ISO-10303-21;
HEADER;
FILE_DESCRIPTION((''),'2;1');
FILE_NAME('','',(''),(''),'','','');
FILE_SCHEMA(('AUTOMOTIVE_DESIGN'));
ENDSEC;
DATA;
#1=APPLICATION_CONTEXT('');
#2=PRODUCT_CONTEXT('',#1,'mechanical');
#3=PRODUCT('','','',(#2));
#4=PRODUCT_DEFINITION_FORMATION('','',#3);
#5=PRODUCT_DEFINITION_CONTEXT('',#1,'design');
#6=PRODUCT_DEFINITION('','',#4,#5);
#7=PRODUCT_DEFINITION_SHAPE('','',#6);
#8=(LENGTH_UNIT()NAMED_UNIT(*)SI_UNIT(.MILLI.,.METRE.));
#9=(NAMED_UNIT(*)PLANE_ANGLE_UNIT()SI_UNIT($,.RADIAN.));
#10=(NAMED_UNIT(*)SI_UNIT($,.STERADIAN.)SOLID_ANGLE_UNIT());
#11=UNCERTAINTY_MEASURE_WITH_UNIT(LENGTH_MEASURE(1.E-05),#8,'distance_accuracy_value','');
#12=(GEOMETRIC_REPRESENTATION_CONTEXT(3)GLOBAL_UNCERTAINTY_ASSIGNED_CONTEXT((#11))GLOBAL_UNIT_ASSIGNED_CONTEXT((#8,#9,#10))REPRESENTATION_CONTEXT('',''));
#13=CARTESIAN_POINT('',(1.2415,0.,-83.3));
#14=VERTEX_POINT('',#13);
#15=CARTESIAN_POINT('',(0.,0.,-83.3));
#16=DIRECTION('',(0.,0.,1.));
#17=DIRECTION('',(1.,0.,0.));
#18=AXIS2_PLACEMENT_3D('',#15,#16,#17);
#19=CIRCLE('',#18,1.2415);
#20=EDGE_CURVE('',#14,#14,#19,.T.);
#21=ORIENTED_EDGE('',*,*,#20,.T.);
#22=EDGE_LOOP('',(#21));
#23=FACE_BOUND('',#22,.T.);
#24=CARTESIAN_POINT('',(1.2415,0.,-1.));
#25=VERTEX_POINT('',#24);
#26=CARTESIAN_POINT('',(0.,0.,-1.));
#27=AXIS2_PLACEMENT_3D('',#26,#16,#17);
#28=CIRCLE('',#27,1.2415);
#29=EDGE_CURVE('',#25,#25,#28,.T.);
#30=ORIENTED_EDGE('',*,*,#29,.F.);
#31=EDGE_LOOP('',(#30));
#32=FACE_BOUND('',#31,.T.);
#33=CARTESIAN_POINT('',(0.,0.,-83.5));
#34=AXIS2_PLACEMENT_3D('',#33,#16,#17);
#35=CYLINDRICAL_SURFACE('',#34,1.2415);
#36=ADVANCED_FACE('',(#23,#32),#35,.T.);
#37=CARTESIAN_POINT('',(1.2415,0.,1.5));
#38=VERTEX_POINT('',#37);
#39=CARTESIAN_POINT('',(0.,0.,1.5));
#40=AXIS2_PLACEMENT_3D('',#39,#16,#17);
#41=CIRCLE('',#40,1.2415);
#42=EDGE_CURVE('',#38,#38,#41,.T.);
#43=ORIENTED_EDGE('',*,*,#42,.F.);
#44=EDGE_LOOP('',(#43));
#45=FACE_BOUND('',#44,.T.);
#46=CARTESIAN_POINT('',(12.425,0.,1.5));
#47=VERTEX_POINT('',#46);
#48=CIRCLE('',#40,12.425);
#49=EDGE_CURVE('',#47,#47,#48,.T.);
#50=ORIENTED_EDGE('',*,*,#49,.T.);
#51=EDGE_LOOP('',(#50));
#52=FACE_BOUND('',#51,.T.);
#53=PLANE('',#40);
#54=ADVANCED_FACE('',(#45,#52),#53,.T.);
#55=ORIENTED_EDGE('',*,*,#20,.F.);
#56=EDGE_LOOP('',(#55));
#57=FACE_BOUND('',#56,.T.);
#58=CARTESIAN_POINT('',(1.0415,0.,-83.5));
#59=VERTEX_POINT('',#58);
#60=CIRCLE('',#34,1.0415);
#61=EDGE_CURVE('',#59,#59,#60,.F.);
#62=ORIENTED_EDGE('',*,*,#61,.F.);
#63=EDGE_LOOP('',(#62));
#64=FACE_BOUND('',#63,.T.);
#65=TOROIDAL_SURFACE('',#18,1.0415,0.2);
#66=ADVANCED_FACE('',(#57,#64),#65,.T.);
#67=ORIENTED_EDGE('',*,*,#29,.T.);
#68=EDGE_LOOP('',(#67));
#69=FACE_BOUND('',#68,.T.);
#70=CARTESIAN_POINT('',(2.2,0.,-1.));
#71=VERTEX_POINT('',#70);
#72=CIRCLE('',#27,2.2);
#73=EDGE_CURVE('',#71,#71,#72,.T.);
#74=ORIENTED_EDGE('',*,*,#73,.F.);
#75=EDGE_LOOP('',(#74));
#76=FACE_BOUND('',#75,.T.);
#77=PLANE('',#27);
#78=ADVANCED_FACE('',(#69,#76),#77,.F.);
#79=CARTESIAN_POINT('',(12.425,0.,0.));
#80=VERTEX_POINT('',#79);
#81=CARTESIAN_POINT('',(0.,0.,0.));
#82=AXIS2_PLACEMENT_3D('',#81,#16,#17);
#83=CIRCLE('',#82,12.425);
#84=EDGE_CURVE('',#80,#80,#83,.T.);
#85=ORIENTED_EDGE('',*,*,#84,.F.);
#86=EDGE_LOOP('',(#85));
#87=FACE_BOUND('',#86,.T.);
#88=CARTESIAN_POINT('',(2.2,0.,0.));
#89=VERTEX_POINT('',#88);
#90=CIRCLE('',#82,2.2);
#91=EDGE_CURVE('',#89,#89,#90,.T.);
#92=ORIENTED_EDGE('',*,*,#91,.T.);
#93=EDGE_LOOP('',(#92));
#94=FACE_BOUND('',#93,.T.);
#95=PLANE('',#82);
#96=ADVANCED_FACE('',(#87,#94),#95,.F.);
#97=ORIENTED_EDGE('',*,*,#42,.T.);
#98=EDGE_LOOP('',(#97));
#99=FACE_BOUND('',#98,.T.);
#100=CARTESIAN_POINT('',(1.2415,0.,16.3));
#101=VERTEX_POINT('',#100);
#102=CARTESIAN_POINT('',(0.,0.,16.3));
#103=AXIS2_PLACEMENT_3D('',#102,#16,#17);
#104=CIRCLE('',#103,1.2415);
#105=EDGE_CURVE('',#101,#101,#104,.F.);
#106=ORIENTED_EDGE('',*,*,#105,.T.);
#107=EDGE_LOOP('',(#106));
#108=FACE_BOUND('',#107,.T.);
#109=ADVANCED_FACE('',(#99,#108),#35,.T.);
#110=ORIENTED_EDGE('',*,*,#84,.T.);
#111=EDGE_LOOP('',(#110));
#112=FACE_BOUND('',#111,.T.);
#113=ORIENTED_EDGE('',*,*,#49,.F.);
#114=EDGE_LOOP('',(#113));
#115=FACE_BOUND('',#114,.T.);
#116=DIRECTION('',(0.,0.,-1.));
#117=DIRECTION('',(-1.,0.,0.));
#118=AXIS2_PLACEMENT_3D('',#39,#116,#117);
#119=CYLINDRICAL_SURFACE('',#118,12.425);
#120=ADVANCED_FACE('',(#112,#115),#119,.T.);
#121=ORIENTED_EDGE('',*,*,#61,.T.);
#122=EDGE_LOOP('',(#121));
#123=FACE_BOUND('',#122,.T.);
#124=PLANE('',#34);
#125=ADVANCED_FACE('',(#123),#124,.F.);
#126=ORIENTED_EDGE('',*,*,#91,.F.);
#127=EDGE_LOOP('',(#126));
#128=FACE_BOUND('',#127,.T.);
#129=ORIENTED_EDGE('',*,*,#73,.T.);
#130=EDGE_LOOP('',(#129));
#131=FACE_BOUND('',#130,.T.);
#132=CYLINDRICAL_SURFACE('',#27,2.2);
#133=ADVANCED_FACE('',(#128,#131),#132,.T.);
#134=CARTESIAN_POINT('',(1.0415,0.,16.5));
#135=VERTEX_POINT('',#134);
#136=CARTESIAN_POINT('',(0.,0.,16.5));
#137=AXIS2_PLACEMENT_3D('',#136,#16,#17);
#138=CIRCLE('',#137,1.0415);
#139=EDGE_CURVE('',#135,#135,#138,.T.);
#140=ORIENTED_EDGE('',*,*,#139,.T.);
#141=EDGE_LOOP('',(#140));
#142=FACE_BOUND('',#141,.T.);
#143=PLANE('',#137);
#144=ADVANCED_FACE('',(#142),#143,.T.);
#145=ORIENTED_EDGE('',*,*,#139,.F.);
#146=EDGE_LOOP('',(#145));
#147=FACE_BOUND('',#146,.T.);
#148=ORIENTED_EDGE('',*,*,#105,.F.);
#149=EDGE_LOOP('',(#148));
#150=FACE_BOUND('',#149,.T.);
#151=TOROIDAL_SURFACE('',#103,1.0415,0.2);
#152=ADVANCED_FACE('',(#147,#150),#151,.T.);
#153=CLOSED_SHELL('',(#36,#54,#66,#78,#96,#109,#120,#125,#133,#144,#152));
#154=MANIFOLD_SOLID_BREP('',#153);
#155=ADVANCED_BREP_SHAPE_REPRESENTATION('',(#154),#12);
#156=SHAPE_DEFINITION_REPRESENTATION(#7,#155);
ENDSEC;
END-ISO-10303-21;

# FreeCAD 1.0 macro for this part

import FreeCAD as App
import Part
import Sketcher
from FreeCAD import Vector
Q = App.Units.Quantity


def edges_at(feature, points):
    """Names of the edges that pass closest to the given points."""
    edges = feature.Shape.Edges
    near = lambda p: min(range(len(edges)), key=lambda i: edges[i].distToShape(Part.Vertex(*p))[0])
    return sorted({f"Edge{near(p) + 1}" for p in points})

doc = App.newDocument("Part")
body = doc.addObject("PartDesign::Body", "Body")

# Sketch on XY plane
sketch1 = body.newObject("Sketcher::SketchObject", "Sketch")
sketch1.AttachmentSupport = (doc.getObject("XY_Plane"), [""])
sketch1.MapMode = "FlatFace"
sketch1.addGeometry([
    Part.Circle(Vector(0, 0, 0), Vector(0, 0, 1), 12.4),
    Part.Circle(Vector(0, 0, 0), Vector(0, 0, 1), 1.2),
], False)
sketch1.addConstraint([
    Sketcher.Constraint("Coincident", 0, 3, -1, 1),
    Sketcher.Constraint("Coincident", 1, 3, -1, 1),
    Sketcher.Constraint("Diameter", 0, Q("24.85 mm")),
    Sketcher.Constraint("Diameter", 1, Q("2.483 mm")),
])
pad1 = body.newObject("PartDesign::Pad", "Pad")
pad1.Profile = sketch1
pad1.Length = 1.5

# Sketch on XY plane
sketch2 = body.newObject("Sketcher::SketchObject", "Sketch001")
sketch2.AttachmentSupport = (doc.getObject("XY_Plane"), [""])
sketch2.MapMode = "FlatFace"
sketch2.AttachmentOffset = App.Placement(Vector(0, 0, -1), App.Rotation())
sketch2.addGeometry([
    Part.Circle(Vector(0, 0, 0), Vector(0, 0, 1), 2.2),
    Part.Circle(Vector(0, 0, 0), Vector(0, 0, 1), 1.2),
], False)
sketch2.addConstraint([
    Sketcher.Constraint("Coincident", 0, 3, -1, 1),
    Sketcher.Constraint("Coincident", 1, 3, -1, 1),
    Sketcher.Constraint("Diameter", 0, Q("4.4 mm")),
    Sketcher.Constraint("Diameter", 1, Q("2.483 mm")),
])
pad2 = body.newObject("PartDesign::Pad", "Pad001")
pad2.Profile = sketch2
pad2.Length = 1

# Sketch on XY plane
sketch3 = body.newObject("Sketcher::SketchObject", "Sketch002")
sketch3.AttachmentSupport = (doc.getObject("XY_Plane"), [""])
sketch3.MapMode = "FlatFace"
sketch3.AttachmentOffset = App.Placement(Vector(0, 0, -83.5), App.Rotation())
sketch3.addGeometry(Part.Circle(Vector(0, 0, 0), Vector(0, 0, 1), 1.2), False)
sketch3.addConstraint([
    Sketcher.Constraint("Coincident", 0, 3, -1, 1),
    Sketcher.Constraint("Diameter", 0, Q("2.483 mm")),
])
pad3 = body.newObject("PartDesign::Pad", "Pad002")
pad3.Profile = sketch3
pad3.Length = 100
doc.recompute()

fillet = body.newObject("PartDesign::Fillet", "Fillet")
fillet.Base = (pad3, edges_at(pad3, [(-1.242, 0, -83.5), (-1.242, 0, 16.5)]))
fillet.Radius = 0.2

doc.recompute()
